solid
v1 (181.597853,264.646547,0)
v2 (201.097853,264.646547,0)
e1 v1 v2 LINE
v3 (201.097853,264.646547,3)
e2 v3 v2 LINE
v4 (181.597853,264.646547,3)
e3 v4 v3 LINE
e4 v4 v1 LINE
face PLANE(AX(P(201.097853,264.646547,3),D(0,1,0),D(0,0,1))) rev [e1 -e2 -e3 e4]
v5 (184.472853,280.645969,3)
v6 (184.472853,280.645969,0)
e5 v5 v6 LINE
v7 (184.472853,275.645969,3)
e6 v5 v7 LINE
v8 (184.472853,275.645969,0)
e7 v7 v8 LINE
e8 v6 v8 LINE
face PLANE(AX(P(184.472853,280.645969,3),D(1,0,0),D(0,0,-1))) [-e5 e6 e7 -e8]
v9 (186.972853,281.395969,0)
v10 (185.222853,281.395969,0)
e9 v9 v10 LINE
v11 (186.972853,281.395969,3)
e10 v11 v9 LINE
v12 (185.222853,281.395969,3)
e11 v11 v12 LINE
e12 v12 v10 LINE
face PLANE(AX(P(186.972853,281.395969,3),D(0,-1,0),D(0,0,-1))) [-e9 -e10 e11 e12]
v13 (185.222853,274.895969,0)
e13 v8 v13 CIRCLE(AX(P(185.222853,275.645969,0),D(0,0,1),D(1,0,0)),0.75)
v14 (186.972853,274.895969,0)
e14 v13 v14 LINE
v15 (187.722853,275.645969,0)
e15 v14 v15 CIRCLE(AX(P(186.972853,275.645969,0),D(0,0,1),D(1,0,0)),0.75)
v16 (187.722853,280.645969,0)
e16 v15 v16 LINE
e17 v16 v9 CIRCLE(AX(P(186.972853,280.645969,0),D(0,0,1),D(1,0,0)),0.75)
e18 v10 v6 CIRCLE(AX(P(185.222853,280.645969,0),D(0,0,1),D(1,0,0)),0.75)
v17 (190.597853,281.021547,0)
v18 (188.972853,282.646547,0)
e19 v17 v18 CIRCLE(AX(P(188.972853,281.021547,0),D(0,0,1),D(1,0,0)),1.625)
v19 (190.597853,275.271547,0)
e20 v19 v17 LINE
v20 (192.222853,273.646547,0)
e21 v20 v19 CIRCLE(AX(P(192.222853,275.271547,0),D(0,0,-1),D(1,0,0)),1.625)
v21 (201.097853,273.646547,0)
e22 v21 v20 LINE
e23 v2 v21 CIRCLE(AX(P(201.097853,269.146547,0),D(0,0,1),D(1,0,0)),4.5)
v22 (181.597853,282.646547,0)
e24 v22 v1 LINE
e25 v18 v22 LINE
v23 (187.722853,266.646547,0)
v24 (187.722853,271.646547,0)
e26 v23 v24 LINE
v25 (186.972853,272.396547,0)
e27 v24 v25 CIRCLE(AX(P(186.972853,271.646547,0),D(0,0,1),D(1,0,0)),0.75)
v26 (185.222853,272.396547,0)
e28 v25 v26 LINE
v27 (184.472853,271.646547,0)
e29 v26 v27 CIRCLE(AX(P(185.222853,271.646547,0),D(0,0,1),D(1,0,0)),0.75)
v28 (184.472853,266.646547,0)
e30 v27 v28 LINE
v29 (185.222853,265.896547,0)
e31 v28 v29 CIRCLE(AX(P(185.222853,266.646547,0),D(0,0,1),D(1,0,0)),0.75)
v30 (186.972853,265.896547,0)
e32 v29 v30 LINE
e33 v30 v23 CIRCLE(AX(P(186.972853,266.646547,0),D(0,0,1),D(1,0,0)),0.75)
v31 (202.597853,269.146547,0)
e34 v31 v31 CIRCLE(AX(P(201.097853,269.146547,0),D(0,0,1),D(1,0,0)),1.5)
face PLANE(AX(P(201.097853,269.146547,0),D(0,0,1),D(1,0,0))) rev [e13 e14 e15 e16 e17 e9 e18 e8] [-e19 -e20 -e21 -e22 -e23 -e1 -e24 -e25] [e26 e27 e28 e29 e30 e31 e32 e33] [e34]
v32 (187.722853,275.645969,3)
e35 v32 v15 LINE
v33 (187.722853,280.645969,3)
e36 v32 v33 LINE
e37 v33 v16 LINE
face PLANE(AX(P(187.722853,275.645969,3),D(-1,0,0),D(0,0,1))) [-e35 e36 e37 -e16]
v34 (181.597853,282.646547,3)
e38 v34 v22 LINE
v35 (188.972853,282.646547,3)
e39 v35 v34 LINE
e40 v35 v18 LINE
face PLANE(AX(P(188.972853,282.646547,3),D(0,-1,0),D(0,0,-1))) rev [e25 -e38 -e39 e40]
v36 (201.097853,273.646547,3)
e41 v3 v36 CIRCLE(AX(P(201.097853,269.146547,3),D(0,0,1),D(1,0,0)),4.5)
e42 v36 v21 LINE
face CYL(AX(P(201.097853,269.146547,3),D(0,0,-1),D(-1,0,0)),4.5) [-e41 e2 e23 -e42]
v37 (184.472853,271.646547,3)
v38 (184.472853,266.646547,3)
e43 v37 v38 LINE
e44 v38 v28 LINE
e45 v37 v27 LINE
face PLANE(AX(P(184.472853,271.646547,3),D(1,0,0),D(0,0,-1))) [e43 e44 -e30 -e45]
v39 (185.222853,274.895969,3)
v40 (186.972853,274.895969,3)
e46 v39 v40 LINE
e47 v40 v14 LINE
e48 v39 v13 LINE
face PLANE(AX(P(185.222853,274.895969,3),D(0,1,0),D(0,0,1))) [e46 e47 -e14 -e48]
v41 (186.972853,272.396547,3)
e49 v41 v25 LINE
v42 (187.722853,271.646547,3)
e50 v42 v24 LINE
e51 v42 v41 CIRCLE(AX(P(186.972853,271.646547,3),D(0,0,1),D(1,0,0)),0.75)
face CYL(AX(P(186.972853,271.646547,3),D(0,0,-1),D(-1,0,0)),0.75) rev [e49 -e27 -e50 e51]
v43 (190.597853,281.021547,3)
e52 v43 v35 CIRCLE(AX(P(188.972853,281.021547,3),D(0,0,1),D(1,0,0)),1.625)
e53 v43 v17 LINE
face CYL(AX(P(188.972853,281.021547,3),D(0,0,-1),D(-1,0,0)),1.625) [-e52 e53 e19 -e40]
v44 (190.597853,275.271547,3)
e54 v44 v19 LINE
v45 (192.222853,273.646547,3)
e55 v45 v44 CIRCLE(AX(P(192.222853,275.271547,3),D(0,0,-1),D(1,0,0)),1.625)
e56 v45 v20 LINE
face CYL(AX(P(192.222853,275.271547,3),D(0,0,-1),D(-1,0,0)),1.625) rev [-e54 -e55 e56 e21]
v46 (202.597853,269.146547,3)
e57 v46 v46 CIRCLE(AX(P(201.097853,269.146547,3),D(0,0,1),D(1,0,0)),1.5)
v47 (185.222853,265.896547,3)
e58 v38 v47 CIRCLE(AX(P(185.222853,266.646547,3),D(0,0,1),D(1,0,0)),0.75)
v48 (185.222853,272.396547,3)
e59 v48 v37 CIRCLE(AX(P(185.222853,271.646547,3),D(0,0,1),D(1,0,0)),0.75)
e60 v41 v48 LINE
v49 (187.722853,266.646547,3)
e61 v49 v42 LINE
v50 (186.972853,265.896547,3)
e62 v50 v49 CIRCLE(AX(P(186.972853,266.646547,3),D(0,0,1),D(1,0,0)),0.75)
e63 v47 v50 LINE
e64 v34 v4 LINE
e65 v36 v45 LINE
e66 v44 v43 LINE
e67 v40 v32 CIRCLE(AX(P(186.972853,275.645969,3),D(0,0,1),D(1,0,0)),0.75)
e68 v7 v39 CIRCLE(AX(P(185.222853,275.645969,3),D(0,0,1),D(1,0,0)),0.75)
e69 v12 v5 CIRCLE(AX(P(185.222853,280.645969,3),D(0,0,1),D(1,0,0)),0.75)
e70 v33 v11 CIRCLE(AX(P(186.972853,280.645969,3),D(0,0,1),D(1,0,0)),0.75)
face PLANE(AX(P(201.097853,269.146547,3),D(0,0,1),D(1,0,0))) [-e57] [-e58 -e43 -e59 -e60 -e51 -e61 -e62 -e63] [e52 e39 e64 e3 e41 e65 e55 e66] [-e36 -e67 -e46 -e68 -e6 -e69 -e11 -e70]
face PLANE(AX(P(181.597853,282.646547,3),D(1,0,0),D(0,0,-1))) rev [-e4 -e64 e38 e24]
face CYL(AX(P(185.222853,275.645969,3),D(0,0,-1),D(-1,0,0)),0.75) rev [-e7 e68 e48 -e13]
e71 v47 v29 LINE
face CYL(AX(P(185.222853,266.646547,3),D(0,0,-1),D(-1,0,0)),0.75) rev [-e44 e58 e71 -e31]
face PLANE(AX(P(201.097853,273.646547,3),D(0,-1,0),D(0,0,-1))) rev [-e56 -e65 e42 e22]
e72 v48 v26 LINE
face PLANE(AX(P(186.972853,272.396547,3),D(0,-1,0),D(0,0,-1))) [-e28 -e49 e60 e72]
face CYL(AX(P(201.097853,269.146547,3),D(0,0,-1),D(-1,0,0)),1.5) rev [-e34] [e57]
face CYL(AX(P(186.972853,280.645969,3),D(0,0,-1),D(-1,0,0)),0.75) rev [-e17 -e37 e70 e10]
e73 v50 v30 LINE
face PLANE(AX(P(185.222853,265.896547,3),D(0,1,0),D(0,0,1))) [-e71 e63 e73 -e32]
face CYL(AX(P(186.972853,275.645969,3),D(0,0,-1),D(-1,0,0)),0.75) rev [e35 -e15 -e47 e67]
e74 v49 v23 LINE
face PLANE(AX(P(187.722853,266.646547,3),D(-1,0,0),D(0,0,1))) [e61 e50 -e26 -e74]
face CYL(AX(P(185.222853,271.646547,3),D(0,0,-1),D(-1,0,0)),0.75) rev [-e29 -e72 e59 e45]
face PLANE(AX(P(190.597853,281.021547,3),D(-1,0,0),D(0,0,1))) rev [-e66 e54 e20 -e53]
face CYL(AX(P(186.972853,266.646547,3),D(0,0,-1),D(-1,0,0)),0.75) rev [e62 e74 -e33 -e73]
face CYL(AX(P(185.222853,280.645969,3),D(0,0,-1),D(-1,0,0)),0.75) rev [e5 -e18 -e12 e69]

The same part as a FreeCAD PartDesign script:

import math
import FreeCAD as App
import Part
import Sketcher
Q = App.Units.Quantity

doc = App.newDocument("Part")
body = doc.addObject("PartDesign::Body", "Body")

# Sketch on XY plane
sketch1 = doc.addObject("Sketcher::SketchObject", "Sketch")
body.addObject(sketch1)
sketch1.AttachmentSupport = (doc.XY_Plane, [""])
sketch1.MapMode = "FlatFace"
sketch1.addGeometry([
    Part.LineSegment(App.Vector(181.6, 264.6, 0), App.Vector(201.1, 264.6, 0)),  # 0
    Part.ArcOfCircle(Part.Circle(App.Vector(201.1, 269.1, 0), App.Vector(0, 0, 1), 4.5), math.radians(-90), math.radians(90)),  # 1
    Part.LineSegment(App.Vector(201.1, 273.6, 0), App.Vector(192.2, 273.6, 0)),  # 2
    Part.ArcOfCircle(Part.Circle(App.Vector(192.2, 275.3, 0), App.Vector(0, 0, 1), 1.6), math.radians(-180), math.radians(-90)),  # 3
    Part.LineSegment(App.Vector(190.6, 275.3, 0), App.Vector(190.6, 281, 0)),  # 4
    Part.ArcOfCircle(Part.Circle(App.Vector(189, 281, 0), App.Vector(0, 0, 1), 1.6), math.radians(0), math.radians(90)),  # 5
    Part.LineSegment(App.Vector(189, 282.6, 0), App.Vector(181.6, 282.6, 0)),  # 6
    Part.LineSegment(App.Vector(181.6, 282.6, 0), App.Vector(181.6, 264.6, 0)),  # 7
    Part.Circle(App.Vector(201.1, 269.1, 0), App.Vector(0, 0, 1), 1.5),  # 8
    Part.ArcOfCircle(Part.Circle(App.Vector(185.2, 266.6, 0), App.Vector(0, 0, 1), 0.8), math.radians(180), math.radians(270)),  # 9
    Part.LineSegment(App.Vector(184.5, 266.6, 0), App.Vector(184.5, 271.6, 0)),  # 10
    Part.ArcOfCircle(Part.Circle(App.Vector(185.2, 271.6, 0), App.Vector(0, 0, 1), 0.8), math.radians(90), math.radians(180)),  # 11
    Part.LineSegment(App.Vector(185.2, 272.4, 0), App.Vector(187, 272.4, 0)),  # 12
    Part.ArcOfCircle(Part.Circle(App.Vector(187, 271.6, 0), App.Vector(0, 0, 1), 0.8), math.radians(0), math.radians(90)),  # 13
    Part.LineSegment(App.Vector(187.7, 271.6, 0), App.Vector(187.7, 266.6, 0)),  # 14
    Part.ArcOfCircle(Part.Circle(App.Vector(187, 266.6, 0), App.Vector(0, 0, 1), 0.8), math.radians(-90), math.radians(0)),  # 15
    Part.LineSegment(App.Vector(187, 265.9, 0), App.Vector(185.2, 265.9, 0)),  # 16
    Part.ArcOfCircle(Part.Circle(App.Vector(185.2, 275.6, 0), App.Vector(0, 0, 1), 0.8), math.radians(180), math.radians(270)),  # 17
    Part.LineSegment(App.Vector(184.5, 275.6, 0), App.Vector(184.5, 280.6, 0)),  # 18
    Part.ArcOfCircle(Part.Circle(App.Vector(185.2, 280.6, 0), App.Vector(0, 0, 1), 0.8), math.radians(90), math.radians(180)),  # 19
    Part.LineSegment(App.Vector(185.2, 281.4, 0), App.Vector(187, 281.4, 0)),  # 20
    Part.ArcOfCircle(Part.Circle(App.Vector(187, 280.6, 0), App.Vector(0, 0, 1), 0.8), math.radians(0), math.radians(90)),  # 21
    Part.LineSegment(App.Vector(187.7, 280.6, 0), App.Vector(187.7, 275.6, 0)),  # 22
    Part.ArcOfCircle(Part.Circle(App.Vector(187, 275.6, 0), App.Vector(0, 0, 1), 0.8), math.radians(-90), math.radians(0)),  # 23
    Part.LineSegment(App.Vector(187, 274.9, 0), App.Vector(185.2, 274.9, 0)),  # 24
], False)
sketch1.addConstraint([
    Sketcher.Constraint("Tangent", 0, 2, 1, 1),
    Sketcher.Constraint("Tangent", 1, 2, 2, 1),
    Sketcher.Constraint("Tangent", 2, 2, 3, 2),
    Sketcher.Constraint("Tangent", 3, 1, 4, 1),
    Sketcher.Constraint("Tangent", 4, 2, 5, 1),
    Sketcher.Constraint("Tangent", 5, 2, 6, 1),
    Sketcher.Constraint("Coincident", 6, 2, 7, 1),
    Sketcher.Constraint("Coincident", 7, 2, 0, 1),
    Sketcher.Constraint("Tangent", 9, 1, 10, 1),
    Sketcher.Constraint("Tangent", 10, 2, 11, 2),
    Sketcher.Constraint("Tangent", 11, 1, 12, 1),
    Sketcher.Constraint("Tangent", 12, 2, 13, 2),
    Sketcher.Constraint("Tangent", 13, 1, 14, 1),
    Sketcher.Constraint("Tangent", 14, 2, 15, 2),
    Sketcher.Constraint("Tangent", 15, 1, 16, 1),
    Sketcher.Constraint("Tangent", 16, 2, 9, 2),
    Sketcher.Constraint("Tangent", 17, 1, 18, 1),
    Sketcher.Constraint("Tangent", 18, 2, 19, 2),
    Sketcher.Constraint("Tangent", 19, 1, 20, 1),
    Sketcher.Constraint("Tangent", 20, 2, 21, 2),
    Sketcher.Constraint("Tangent", 21, 1, 22, 1),
    Sketcher.Constraint("Tangent", 22, 2, 23, 2),
    Sketcher.Constraint("Tangent", 23, 1, 24, 1),
    Sketcher.Constraint("Tangent", 24, 2, 17, 2),
    Sketcher.Constraint("Horizontal", 0),
    Sketcher.Constraint("Horizontal", 2),
    Sketcher.Constraint("Vertical", 4),
    Sketcher.Constraint("Horizontal", 6),
    Sketcher.Constraint("Vertical", 7),
    Sketcher.Constraint("Vertical", 10),
    Sketcher.Constraint("Horizontal", 12),
    Sketcher.Constraint("Vertical", 14),
    Sketcher.Constraint("Horizontal", 16),
    Sketcher.Constraint("Vertical", 18),
    Sketcher.Constraint("Horizontal", 20),
    Sketcher.Constraint("Vertical", 22),
    Sketcher.Constraint("Horizontal", 24),
    Sketcher.Constraint("Coincident", 8, 3, 1, 3),
    Sketcher.Constraint("Equal", 3, 5),
    Sketcher.Constraint("Equal", 9, 11),
    Sketcher.Constraint("Equal", 11, 13),
    Sketcher.Constraint("Equal", 13, 15),
    Sketcher.Constraint("Equal", 15, 17),
    Sketcher.Constraint("Equal", 17, 19),
    Sketcher.Constraint("Equal", 19, 21),
    Sketcher.Constraint("Equal", 21, 23),
    Sketcher.Constraint("Vertical", 11, 3, 17, 3),
    Sketcher.Constraint("Vertical", 15, 3, 21, 3),
    Sketcher.Constraint("Equal", 14, 18),
    Sketcher.Constraint("Diameter", 8, Q("3 mm")),
    Sketcher.Constraint("Radius", 1, Q("4.5 mm")),
    Sketcher.Constraint("DistanceY", 7, 2, 7, 1, Q("18 mm")),
    Sketcher.Constraint("DistanceY", 10, 1, 10, 2, Q("5 mm")),
    Sketcher.Constraint("Radius", 9, Q("0.75 mm")),
    Sketcher.Constraint("DistanceX", 0, 1, 0, 2, Q("19.5 mm")),
    Sketcher.Constraint("Radius", 3, Q("1.625 mm")),
    Sketcher.Constraint("DistanceX", 9, 3, 3, 3, Q("7 mm")),
    Sketcher.Constraint("DistanceX", 13, 3, 5, 3, Q("2 mm")),
    Sketcher.Constraint("DistanceY", 0, 2, 15, 3, Q("2 mm")),
    Sketcher.Constraint("DistanceX", 2, 2, 2, 1, Q("8.875 mm")),
    Sketcher.Constraint("DistanceY", -1, 1, 17, 3, Q("275.645969 mm")),
    Sketcher.Constraint("DistanceY", 11, 3, 17, 3, Q("3.999421 mm")),
    Sketcher.Constraint("DistanceX", -1, 1, 1, 3, Q("201.097853 mm")),
])
pad1 = doc.addObject("PartDesign::Pad", "Pad")
body.addObject(pad1)
pad1.Profile = sketch1
pad1.Length = 3

doc.recompute()
